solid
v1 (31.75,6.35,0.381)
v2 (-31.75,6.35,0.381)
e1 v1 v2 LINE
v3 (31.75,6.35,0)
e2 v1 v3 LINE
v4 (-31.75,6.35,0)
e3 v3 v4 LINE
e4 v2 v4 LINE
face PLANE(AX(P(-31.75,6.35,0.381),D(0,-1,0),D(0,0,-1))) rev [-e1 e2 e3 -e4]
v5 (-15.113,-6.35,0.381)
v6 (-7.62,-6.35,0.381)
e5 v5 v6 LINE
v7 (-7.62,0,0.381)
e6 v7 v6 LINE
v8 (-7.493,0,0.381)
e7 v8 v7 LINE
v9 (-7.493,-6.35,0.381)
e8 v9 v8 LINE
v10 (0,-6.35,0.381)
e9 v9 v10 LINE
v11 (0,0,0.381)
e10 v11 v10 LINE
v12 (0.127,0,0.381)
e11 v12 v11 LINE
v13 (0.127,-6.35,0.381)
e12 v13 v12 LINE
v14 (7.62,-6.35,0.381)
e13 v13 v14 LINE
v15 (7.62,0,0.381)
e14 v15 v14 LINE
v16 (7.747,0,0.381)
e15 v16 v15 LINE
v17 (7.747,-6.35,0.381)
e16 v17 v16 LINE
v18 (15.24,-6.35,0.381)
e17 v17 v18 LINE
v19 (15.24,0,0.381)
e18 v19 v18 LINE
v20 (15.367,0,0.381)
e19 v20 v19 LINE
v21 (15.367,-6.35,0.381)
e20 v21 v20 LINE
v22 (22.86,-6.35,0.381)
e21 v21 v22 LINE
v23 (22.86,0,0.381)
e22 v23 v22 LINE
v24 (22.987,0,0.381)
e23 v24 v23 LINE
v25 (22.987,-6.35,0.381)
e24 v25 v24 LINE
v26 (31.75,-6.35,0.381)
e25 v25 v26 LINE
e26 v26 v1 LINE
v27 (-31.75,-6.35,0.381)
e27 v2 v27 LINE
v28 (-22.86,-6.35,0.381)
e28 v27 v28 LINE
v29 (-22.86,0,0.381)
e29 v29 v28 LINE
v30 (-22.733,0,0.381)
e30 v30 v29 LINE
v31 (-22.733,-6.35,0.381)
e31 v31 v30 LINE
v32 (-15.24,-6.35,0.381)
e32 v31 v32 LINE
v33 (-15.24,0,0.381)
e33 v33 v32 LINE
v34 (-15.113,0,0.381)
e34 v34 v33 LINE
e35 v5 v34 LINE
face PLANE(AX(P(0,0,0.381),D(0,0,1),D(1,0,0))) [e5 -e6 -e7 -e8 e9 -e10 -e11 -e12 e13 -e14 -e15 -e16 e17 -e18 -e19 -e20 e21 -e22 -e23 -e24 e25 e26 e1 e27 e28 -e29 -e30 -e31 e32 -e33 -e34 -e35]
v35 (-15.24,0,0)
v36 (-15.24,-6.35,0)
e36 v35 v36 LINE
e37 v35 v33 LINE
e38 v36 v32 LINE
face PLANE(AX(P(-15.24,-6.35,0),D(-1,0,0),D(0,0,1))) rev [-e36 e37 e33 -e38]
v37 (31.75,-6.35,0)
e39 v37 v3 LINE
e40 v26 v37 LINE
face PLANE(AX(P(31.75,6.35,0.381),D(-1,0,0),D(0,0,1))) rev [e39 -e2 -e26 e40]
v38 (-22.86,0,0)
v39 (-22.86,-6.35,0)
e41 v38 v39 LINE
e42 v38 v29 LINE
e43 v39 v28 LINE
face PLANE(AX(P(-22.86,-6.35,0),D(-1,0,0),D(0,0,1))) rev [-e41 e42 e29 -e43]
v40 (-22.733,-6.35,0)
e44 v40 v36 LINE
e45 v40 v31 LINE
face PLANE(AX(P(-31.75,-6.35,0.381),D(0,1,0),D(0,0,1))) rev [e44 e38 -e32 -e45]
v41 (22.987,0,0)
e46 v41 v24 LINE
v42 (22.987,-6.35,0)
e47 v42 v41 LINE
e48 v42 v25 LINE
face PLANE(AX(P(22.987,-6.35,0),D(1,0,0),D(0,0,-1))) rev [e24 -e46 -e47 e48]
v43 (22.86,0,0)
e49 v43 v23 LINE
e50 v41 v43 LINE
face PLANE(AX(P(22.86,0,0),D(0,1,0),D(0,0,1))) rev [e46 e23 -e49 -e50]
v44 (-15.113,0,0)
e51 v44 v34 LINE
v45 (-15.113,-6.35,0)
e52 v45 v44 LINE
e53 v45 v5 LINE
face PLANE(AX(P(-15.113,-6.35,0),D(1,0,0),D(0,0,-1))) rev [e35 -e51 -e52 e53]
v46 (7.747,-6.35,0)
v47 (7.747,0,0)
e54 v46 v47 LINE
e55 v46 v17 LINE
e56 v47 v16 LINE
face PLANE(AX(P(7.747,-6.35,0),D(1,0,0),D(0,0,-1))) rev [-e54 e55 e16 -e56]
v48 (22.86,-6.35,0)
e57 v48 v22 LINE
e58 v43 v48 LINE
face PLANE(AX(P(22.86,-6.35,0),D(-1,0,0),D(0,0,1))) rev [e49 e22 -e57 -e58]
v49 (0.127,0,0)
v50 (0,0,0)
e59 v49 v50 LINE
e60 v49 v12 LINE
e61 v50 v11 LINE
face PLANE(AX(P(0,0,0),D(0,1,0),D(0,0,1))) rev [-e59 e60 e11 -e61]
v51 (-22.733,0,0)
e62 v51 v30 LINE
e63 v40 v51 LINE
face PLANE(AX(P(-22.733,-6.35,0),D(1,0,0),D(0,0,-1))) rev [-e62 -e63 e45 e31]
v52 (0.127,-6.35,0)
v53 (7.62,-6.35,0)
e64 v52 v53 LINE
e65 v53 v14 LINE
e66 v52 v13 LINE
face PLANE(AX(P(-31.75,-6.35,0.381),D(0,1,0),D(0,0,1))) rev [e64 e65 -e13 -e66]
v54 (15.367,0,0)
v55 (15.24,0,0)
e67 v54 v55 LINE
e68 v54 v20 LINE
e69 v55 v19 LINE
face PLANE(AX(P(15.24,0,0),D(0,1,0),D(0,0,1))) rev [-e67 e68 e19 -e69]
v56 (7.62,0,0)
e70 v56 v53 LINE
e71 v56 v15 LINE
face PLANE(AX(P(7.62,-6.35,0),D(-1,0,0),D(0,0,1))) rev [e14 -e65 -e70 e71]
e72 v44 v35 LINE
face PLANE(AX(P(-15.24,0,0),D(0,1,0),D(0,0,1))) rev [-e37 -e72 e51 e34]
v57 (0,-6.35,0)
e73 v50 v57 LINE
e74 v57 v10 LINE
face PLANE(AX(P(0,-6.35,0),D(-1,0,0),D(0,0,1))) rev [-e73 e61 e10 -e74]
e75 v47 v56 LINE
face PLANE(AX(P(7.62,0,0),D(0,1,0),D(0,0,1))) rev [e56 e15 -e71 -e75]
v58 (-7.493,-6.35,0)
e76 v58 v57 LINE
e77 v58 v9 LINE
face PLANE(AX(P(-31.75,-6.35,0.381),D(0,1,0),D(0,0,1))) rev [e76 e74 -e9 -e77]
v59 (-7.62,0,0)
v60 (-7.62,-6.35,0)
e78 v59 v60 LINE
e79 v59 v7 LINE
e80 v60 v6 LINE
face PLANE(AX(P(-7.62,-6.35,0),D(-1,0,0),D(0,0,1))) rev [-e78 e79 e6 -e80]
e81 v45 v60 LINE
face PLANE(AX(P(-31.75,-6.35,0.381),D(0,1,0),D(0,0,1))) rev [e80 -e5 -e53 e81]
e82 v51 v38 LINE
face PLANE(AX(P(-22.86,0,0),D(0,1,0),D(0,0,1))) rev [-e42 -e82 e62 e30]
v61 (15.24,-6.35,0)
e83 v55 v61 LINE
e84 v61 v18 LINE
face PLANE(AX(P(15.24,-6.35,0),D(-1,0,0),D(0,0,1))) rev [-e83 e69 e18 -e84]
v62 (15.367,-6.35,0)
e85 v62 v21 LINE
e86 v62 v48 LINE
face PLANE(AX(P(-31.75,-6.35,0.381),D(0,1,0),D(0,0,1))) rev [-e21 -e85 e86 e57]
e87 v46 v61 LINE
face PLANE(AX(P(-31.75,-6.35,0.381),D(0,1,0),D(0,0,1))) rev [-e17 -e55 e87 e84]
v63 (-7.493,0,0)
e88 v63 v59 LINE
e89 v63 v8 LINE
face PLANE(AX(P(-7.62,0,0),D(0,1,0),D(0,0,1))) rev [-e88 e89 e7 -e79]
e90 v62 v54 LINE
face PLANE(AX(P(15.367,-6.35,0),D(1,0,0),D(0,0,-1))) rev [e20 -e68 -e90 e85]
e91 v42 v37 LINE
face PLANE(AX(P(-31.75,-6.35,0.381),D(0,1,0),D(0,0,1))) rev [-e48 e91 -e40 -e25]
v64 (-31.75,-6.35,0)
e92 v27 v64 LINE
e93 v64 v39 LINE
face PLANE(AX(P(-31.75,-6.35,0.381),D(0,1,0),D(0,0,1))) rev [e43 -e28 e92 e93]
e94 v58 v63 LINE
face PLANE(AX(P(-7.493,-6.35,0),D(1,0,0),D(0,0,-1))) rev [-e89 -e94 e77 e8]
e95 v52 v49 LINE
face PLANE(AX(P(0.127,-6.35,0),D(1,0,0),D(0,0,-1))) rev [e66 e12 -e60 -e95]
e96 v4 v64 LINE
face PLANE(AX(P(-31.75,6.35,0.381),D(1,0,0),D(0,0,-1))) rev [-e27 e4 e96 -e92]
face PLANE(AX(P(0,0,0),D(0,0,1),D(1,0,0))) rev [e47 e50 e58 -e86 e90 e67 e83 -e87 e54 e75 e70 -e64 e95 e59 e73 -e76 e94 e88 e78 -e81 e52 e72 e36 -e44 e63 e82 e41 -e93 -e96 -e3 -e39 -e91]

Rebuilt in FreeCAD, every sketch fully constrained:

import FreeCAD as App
import Part
import Sketcher
Q = App.Units.Quantity

doc = App.newDocument("Part")
body = doc.addObject("PartDesign::Body", "Body")

sketch1 = body.newObject("Sketcher::SketchObject", "Sketch")
sketch1.AttachmentSupport = (doc.getObject("XY_Plane"), [""])
sketch1.MapMode = "FlatFace"
sketch1.addGeometry(Part.LineSegment(App.Vector(-31.75, 6.35, 0), App.Vector(-31.75, -6.35, 0)), False)
sketch1.addGeometry(Part.LineSegment(App.Vector(-31.75, -6.35, 0), App.Vector(31.75, -6.35, 0)), False)
sketch1.addGeometry(Part.LineSegment(App.Vector(31.75, -6.35, 0), App.Vector(31.75, 6.35, 0)), False)
sketch1.addGeometry(Part.LineSegment(App.Vector(31.75, 6.35, 0), App.Vector(-31.75, 6.35, 0)), False)
sketch1.addConstraint(Sketcher.Constraint("Coincident", 0, 2, 1, 1))
sketch1.addConstraint(Sketcher.Constraint("Coincident", 1, 2, 2, 1))
sketch1.addConstraint(Sketcher.Constraint("Coincident", 2, 2, 3, 1))
sketch1.addConstraint(Sketcher.Constraint("Coincident", 3, 2, 0, 1))
sketch1.addConstraint(Sketcher.Constraint("Vertical", 0))
sketch1.addConstraint(Sketcher.Constraint("Horizontal", 1))
sketch1.addConstraint(Sketcher.Constraint("Vertical", 2))
sketch1.addConstraint(Sketcher.Constraint("Horizontal", 3))
sketch1.addConstraint(Sketcher.Constraint("Symmetric", 0, 2, 2, 2, -1, 1))
sketch1.addConstraint(Sketcher.Constraint("DistanceX", 1, 1, 1, 2, Q("2.5 in")))
sketch1.addConstraint(Sketcher.Constraint("DistanceY", 0, 2, 0, 1, Q("0.5 in")))
pad1 = body.newObject("PartDesign::Pad", "Pad")
pad1.Profile = sketch1
pad1.Length = Q("0.015 in")

sketch2 = body.newObject("Sketcher::SketchObject", "Sketch001")
sketch2.AttachmentSupport = (doc.getObject("XY_Plane"), [""])
sketch2.MapMode = "FlatFace"
sketch2.AttachmentOffset = App.Placement(App.Vector(0, 0, 0.015 * 25.4), App.Rotation())
sketch2.addGeometry(Part.LineSegment(App.Vector(-22.86, 0, 0), App.Vector(-22.86, -6.35, 0)), False)
sketch2.addGeometry(Part.LineSegment(App.Vector(-22.86, -6.35, 0), App.Vector(-22.733, -6.35, 0)), False)
sketch2.addGeometry(Part.LineSegment(App.Vector(-22.733, -6.35, 0), App.Vector(-22.733, 0, 0)), False)
sketch2.addGeometry(Part.LineSegment(App.Vector(-22.733, 0, 0), App.Vector(-22.86, 0, 0)), False)
sketch2.addGeometry(Part.LineSegment(App.Vector(-15.24, 0, 0), App.Vector(-15.24, -6.35, 0)), False)
sketch2.addGeometry(Part.LineSegment(App.Vector(-15.24, -6.35, 0), App.Vector(-15.113, -6.35, 0)), False)
sketch2.addGeometry(Part.LineSegment(App.Vector(-15.113, -6.35, 0), App.Vector(-15.113, 0, 0)), False)
sketch2.addGeometry(Part.LineSegment(App.Vector(-15.113, 0, 0), App.Vector(-15.24, 0, 0)), False)
sketch2.addGeometry(Part.LineSegment(App.Vector(-7.62, 0, 0), App.Vector(-7.62, -6.35, 0)), False)
sketch2.addGeometry(Part.LineSegment(App.Vector(-7.62, -6.35, 0), App.Vector(-7.493, -6.35, 0)), False)
sketch2.addGeometry(Part.LineSegment(App.Vector(-7.493, -6.35, 0), App.Vector(-7.493, 0, 0)), False)
sketch2.addGeometry(Part.LineSegment(App.Vector(-7.493, 0, 0), App.Vector(-7.62, 0, 0)), False)
sketch2.addGeometry(Part.LineSegment(App.Vector(0, 0, 0), App.Vector(0, -6.35, 0)), False)
sketch2.addGeometry(Part.LineSegment(App.Vector(0, -6.35, 0), App.Vector(0.127, -6.35, 0)), False)
sketch2.addGeometry(Part.LineSegment(App.Vector(0.127, -6.35, 0), App.Vector(0.127, 0, 0)), False)
sketch2.addGeometry(Part.LineSegment(App.Vector(0.127, 0, 0), App.Vector(0, 0, 0)), False)
sketch2.addGeometry(Part.LineSegment(App.Vector(7.62, 0, 0), App.Vector(7.62, -6.35, 0)), False)
sketch2.addGeometry(Part.LineSegment(App.Vector(7.62, -6.35, 0), App.Vector(7.747, -6.35, 0)), False)
sketch2.addGeometry(Part.LineSegment(App.Vector(7.747, -6.35, 0), App.Vector(7.747, 0, 0)), False)
sketch2.addGeometry(Part.LineSegment(App.Vector(7.747, 0, 0), App.Vector(7.62, 0, 0)), False)
sketch2.addGeometry(Part.LineSegment(App.Vector(15.24, 0, 0), App.Vector(15.24, -6.35, 0)), False)
sketch2.addGeometry(Part.LineSegment(App.Vector(15.24, -6.35, 0), App.Vector(15.367, -6.35, 0)), False)
sketch2.addGeometry(Part.LineSegment(App.Vector(15.367, -6.35, 0), App.Vector(15.367, 0, 0)), False)
sketch2.addGeometry(Part.LineSegment(App.Vector(15.367, 0, 0), App.Vector(15.24, 0, 0)), False)
sketch2.addGeometry(Part.LineSegment(App.Vector(22.86, 0, 0), App.Vector(22.86, -6.35, 0)), False)
sketch2.addGeometry(Part.LineSegment(App.Vector(22.86, -6.35, 0), App.Vector(22.987, -6.35, 0)), False)
sketch2.addGeometry(Part.LineSegment(App.Vector(22.987, -6.35, 0), App.Vector(22.987, 0, 0)), False)
sketch2.addGeometry(Part.LineSegment(App.Vector(22.987, 0, 0), App.Vector(22.86, 0, 0)), False)
sketch2.addConstraint(Sketcher.Constraint("Coincident", 0, 2, 1, 1))
sketch2.addConstraint(Sketcher.Constraint("Coincident", 1, 2, 2, 1))
sketch2.addConstraint(Sketcher.Constraint("Coincident", 2, 2, 3, 1))
sketch2.addConstraint(Sketcher.Constraint("Coincident", 3, 2, 0, 1))
sketch2.addConstraint(Sketcher.Constraint("Coincident", 4, 2, 5, 1))
sketch2.addConstraint(Sketcher.Constraint("Coincident", 5, 2, 6, 1))
sketch2.addConstraint(Sketcher.Constraint("Coincident", 6, 2, 7, 1))
sketch2.addConstraint(Sketcher.Constraint("Coincident", 7, 2, 4, 1))
sketch2.addConstraint(Sketcher.Constraint("Coincident", 8, 2, 9, 1))
sketch2.addConstraint(Sketcher.Constraint("Coincident", 9, 2, 10, 1))
sketch2.addConstraint(Sketcher.Constraint("Coincident", 10, 2, 11, 1))
sketch2.addConstraint(Sketcher.Constraint("Coincident", 11, 2, 8, 1))
sketch2.addConstraint(Sketcher.Constraint("Coincident", 12, 2, 13, 1))
sketch2.addConstraint(Sketcher.Constraint("Coincident", 13, 2, 14, 1))
sketch2.addConstraint(Sketcher.Constraint("Coincident", 14, 2, 15, 1))
sketch2.addConstraint(Sketcher.Constraint("Coincident", 15, 2, 12, 1))
sketch2.addConstraint(Sketcher.Constraint("Coincident", 16, 2, 17, 1))
sketch2.addConstraint(Sketcher.Constraint("Coincident", 17, 2, 18, 1))
sketch2.addConstraint(Sketcher.Constraint("Coincident", 18, 2, 19, 1))
sketch2.addConstraint(Sketcher.Constraint("Coincident", 19, 2, 16, 1))
sketch2.addConstraint(Sketcher.Constraint("Coincident", 20, 2, 21, 1))
sketch2.addConstraint(Sketcher.Constraint("Coincident", 21, 2, 22, 1))
sketch2.addConstraint(Sketcher.Constraint("Coincident", 22, 2, 23, 1))
sketch2.addConstraint(Sketcher.Constraint("Coincident", 23, 2, 20, 1))
sketch2.addConstraint(Sketcher.Constraint("Coincident", 24, 2, 25, 1))
sketch2.addConstraint(Sketcher.Constraint("Coincident", 25, 2, 26, 1))
sketch2.addConstraint(Sketcher.Constraint("Coincident", 26, 2, 27, 1))
sketch2.addConstraint(Sketcher.Constraint("Coincident", 27, 2, 24, 1))
sketch2.addConstraint(Sketcher.Constraint("Vertical", 0))
sketch2.addConstraint(Sketcher.Constraint("Horizontal", 1))
sketch2.addConstraint(Sketcher.Constraint("Vertical", 2))
sketch2.addConstraint(Sketcher.Constraint("Horizontal", 3))
sketch2.addConstraint(Sketcher.Constraint("Vertical", 4))
sketch2.addConstraint(Sketcher.Constraint("Horizontal", 5))
sketch2.addConstraint(Sketcher.Constraint("Vertical", 6))
sketch2.addConstraint(Sketcher.Constraint("Horizontal", 7))
sketch2.addConstraint(Sketcher.Constraint("Vertical", 8))
sketch2.addConstraint(Sketcher.Constraint("Horizontal", 9))
sketch2.addConstraint(Sketcher.Constraint("Vertical", 10))
sketch2.addConstraint(Sketcher.Constraint("Horizontal", 11))
sketch2.addConstraint(Sketcher.Constraint("Vertical", 12))
sketch2.addConstraint(Sketcher.Constraint("Horizontal", 13))
sketch2.addConstraint(Sketcher.Constraint("Vertical", 14))
sketch2.addConstraint(Sketcher.Constraint("Horizontal", 15))
sketch2.addConstraint(Sketcher.Constraint("Vertical", 16))
sketch2.addConstraint(Sketcher.Constraint("Horizontal", 17))
sketch2.addConstraint(Sketcher.Constraint("Vertical", 18))
sketch2.addConstraint(Sketcher.Constraint("Horizontal", 19))
sketch2.addConstraint(Sketcher.Constraint("Vertical", 20))
sketch2.addConstraint(Sketcher.Constraint("Horizontal", 21))
sketch2.addConstraint(Sketcher.Constraint("Vertical", 22))
sketch2.addConstraint(Sketcher.Constraint("Horizontal", 23))
sketch2.addConstraint(Sketcher.Constraint("Vertical", 24))
sketch2.addConstraint(Sketcher.Constraint("Horizontal", 25))
sketch2.addConstraint(Sketcher.Constraint("Vertical", 26))
sketch2.addConstraint(Sketcher.Constraint("Horizontal", 27))
sketch2.addConstraint(Sketcher.Constraint("Coincident", 15, 2, -1, 1))
sketch2.addConstraint(Sketcher.Constraint("Symmetric", 11, 2, 19, 2, -1, 1))
sketch2.addConstraint(Sketcher.Constraint("Symmetric", 7, 2, 23, 2, -1, 1))
sketch2.addConstraint(Sketcher.Constraint("Symmetric", 3, 2, 27, 2, -1, 1))
sketch2.addConstraint(Sketcher.Constraint("PointOnObject", 2, 2, -1))
sketch2.addConstraint(Sketcher.Constraint("PointOnObject", 6, 2, -1))
sketch2.addConstraint(Sketcher.Constraint("PointOnObject", 10, 2, -1))
sketch2.addConstraint(Sketcher.Constraint("Horizontal", 1, 2, 4, 2))
sketch2.addConstraint(Sketcher.Constraint("Horizontal", 5, 2, 8, 2))
sketch2.addConstraint(Sketcher.Constraint("Horizontal", 9, 2, 12, 2))
sketch2.addConstraint(Sketcher.Constraint("Horizontal", 13, 2, 16, 2))
sketch2.addConstraint(Sketcher.Constraint("Horizontal", 17, 2, 20, 2))
sketch2.addConstraint(Sketcher.Constraint("Horizontal", 21, 2, 24, 2))
sketch2.addConstraint(Sketcher.Constraint("Equal", 3, 5))
sketch2.addConstraint(Sketcher.Constraint("Equal", 7, 9))
sketch2.addConstraint(Sketcher.Constraint("Equal", 11, 13))
sketch2.addConstraint(Sketcher.Constraint("Equal", 15, 17))
sketch2.addConstraint(Sketcher.Constraint("Equal", 19, 21))
sketch2.addConstraint(Sketcher.Constraint("Equal", 23, 25))
sketch2.addConstraint(Sketcher.Constraint("DistanceY", 0, 2, 0, 1, Q("0.25 in")))
sketch2.addConstraint(Sketcher.Constraint("DistanceX", 0, 2, -1, 1, Q("0.9 in")))
sketch2.addConstraint(Sketcher.Constraint("DistanceX", 4, 2, -1, 1, Q("0.6 in")))
sketch2.addConstraint(Sketcher.Constraint("DistanceX", 8, 2, -1, 1, Q("0.3 in")))
sketch2.addConstraint(Sketcher.Constraint("DistanceX", 1, 1, 1, 2, Q("0.005 in")))
pocket1 = body.newObject("PartDesign::Pocket", "Pocket")
pocket1.Profile = sketch2
pocket1.Type = "ThroughAll"

doc.recompute()
